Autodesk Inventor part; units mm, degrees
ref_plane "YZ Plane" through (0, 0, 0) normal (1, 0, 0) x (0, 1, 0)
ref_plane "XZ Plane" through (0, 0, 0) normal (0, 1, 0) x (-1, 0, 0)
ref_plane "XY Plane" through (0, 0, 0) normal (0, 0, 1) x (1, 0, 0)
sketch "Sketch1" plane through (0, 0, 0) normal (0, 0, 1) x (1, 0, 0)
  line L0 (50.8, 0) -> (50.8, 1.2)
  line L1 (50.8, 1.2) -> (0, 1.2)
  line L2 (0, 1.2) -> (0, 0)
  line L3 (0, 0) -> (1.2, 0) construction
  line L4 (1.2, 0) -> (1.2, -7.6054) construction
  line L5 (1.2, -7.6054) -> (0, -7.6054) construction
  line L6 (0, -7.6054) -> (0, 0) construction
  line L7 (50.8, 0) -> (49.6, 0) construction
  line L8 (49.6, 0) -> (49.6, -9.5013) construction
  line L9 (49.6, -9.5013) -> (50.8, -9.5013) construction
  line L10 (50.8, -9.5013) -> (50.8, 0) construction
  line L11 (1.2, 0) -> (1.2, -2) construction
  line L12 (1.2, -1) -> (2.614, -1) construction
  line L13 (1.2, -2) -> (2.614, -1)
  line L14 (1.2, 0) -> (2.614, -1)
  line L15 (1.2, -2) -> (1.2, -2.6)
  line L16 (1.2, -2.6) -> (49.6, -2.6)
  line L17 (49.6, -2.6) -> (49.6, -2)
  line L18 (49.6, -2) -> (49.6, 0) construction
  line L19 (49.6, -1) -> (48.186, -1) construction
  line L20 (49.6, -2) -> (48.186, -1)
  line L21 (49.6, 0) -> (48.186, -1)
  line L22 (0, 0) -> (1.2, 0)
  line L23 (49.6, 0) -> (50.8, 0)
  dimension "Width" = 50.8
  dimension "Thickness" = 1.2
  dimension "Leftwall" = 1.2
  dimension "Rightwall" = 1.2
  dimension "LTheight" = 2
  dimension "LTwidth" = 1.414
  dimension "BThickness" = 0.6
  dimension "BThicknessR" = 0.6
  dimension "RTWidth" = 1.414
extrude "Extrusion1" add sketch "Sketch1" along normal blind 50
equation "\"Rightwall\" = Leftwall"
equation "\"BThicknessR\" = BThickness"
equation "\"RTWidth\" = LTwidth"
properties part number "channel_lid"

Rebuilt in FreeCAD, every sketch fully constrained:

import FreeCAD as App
import Part
import Sketcher

V = App.Vector
Q = App.Units.Quantity


def add_polygon(sketch, points):
    """Adds a closed chain of lines whose ends are joined by coincident constraints."""
    first, n = sketch.GeometryCount, len(points)
    for a, b in zip(points, points[1:] + points[:1]):
        sketch.addGeometry(Part.LineSegment(App.Vector(*a, 0), App.Vector(*b, 0)), False)
    for i in range(n):
        sketch.addConstraint(Sketcher.Constraint("Coincident", first + i, 2, first + (i + 1) % n, 1))

doc = App.newDocument("Part")
body = doc.addObject("PartDesign::Body", "Body")

sketch1 = body.newObject("Sketcher::SketchObject", "Sketch")
sketch1.AttachmentSupport = (doc.getObject("XY_Plane"), [""])
sketch1.MapMode = "FlatFace"
add_polygon(sketch1, [(49.6, 0), (50.8, 0), (50.8, 1.2), (0, 1.2), (0, 0), (1.2, 0), (2.6, -1), (1.2, -2), (1.2, -2.6), (49.6, -2.6), (49.6, -2), (48.2, -1)])
sketch1.addConstraint([
    Sketcher.Constraint("Horizontal", 0),
    Sketcher.Constraint("Vertical", 1),
    Sketcher.Constraint("Horizontal", 2),
    Sketcher.Constraint("Vertical", 3),
    Sketcher.Constraint("Horizontal", 4),
    Sketcher.Constraint("Vertical", 7),
    Sketcher.Constraint("Horizontal", 8),
    Sketcher.Constraint("Vertical", 9),
    Sketcher.Constraint("Coincident", 3, 2, -1, 1),
    Sketcher.Constraint("PointOnObject", 0, 2, -1),
    Sketcher.Constraint("Parallel", 5, 10),
    Sketcher.Constraint("Parallel", 6, 11),
    Sketcher.Constraint("Horizontal", 6, 2, 9, 2),
    Sketcher.Constraint("Horizontal", 5, 2, 10, 2),
    Sketcher.Constraint("Vertical", 4, 2, 6, 2),
    Sketcher.Constraint("Vertical", 9, 2, 11, 2),
    Sketcher.Constraint("Equal", 0, 4),
    Sketcher.Constraint("Equal", 4, 1),
    Sketcher.Constraint("DistanceX", 0, 1, 0, 2, Q("1.2 mm")),
    Sketcher.Constraint("DistanceX", 2, 2, 2, 1, Q("50.8 mm")),
    Sketcher.Constraint("DistanceY", 7, 2, 7, 1, Q("0.6 mm")),
    Sketcher.Constraint("DistanceY", 6, 2, -1, 1, Q("2 mm")),
    Sketcher.Constraint("DistanceX", 4, 2, 5, 2, Q("1.414 mm")),
])
pad1 = body.newObject("PartDesign::Pad", "Pad")
pad1.Profile = sketch1
pad1.Length = 50

doc.recompute()
